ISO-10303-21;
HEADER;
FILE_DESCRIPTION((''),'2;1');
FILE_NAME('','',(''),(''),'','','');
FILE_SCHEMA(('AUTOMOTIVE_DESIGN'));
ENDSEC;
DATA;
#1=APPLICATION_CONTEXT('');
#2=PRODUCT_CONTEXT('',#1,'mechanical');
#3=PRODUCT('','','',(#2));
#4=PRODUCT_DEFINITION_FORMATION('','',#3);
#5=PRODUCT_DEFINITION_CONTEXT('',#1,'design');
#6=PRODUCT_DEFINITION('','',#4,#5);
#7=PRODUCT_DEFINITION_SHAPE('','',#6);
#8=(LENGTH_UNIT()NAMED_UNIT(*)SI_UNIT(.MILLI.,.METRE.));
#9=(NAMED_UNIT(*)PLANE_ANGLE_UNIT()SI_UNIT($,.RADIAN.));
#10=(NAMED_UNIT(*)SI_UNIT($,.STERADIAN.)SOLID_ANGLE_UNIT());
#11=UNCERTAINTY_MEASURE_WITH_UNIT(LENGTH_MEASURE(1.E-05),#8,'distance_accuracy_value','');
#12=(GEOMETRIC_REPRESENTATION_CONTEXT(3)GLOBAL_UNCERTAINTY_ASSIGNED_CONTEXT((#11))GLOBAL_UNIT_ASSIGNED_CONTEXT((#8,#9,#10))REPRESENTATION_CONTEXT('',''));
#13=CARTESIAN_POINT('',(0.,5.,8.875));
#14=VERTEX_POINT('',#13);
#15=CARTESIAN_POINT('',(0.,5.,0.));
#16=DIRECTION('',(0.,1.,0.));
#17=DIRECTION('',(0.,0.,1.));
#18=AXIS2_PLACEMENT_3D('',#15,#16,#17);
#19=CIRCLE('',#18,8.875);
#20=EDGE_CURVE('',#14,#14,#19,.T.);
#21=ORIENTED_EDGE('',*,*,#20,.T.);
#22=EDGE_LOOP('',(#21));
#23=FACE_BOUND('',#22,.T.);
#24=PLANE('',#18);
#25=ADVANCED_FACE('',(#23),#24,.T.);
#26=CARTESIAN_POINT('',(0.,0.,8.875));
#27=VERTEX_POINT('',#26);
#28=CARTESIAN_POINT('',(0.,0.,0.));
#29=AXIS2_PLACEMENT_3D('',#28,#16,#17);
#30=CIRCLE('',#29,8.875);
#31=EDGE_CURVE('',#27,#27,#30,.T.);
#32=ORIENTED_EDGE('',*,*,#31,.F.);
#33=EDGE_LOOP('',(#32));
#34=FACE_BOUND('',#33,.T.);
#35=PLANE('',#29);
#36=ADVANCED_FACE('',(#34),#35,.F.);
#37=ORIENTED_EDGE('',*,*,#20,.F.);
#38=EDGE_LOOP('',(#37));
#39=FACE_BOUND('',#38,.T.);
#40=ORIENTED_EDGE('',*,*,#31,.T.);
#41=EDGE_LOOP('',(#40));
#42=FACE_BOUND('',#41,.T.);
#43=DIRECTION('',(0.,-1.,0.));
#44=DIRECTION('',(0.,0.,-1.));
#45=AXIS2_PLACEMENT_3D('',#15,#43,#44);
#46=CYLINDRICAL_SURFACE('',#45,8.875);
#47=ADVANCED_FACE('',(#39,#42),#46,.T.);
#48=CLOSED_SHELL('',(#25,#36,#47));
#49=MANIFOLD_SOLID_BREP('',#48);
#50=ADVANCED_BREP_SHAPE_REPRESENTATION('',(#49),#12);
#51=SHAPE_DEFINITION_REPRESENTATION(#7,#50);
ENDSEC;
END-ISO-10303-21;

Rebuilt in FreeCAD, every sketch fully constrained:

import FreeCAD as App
import Part
import Sketcher

V = App.Vector
Q = App.Units.Quantity

doc = App.newDocument("Part")
body = doc.addObject("PartDesign::Body", "Body")

sketch1 = doc.addObject("Sketcher::SketchObject", "Sketch")
body.addObject(sketch1)
sketch1.AttachmentSupport = (doc.XZ_Plane, [""])
sketch1.MapMode = "FlatFace"
sketch1.addGeometry(Part.Circle(V(0, 0, 0), V(0, 0, 1), 9), False)
sketch1.addConstraint([
    Sketcher.Constraint("Coincident", 0, 3, -1, 1),
    Sketcher.Constraint("Diameter", 0, Q("17.75 mm")),
])
pad1 = doc.addObject("PartDesign::Pad", "Pad")
body.addObject(pad1)
pad1.Profile = sketch1
pad1.Length = 5
pad1.Reversed = True

doc.recompute()
